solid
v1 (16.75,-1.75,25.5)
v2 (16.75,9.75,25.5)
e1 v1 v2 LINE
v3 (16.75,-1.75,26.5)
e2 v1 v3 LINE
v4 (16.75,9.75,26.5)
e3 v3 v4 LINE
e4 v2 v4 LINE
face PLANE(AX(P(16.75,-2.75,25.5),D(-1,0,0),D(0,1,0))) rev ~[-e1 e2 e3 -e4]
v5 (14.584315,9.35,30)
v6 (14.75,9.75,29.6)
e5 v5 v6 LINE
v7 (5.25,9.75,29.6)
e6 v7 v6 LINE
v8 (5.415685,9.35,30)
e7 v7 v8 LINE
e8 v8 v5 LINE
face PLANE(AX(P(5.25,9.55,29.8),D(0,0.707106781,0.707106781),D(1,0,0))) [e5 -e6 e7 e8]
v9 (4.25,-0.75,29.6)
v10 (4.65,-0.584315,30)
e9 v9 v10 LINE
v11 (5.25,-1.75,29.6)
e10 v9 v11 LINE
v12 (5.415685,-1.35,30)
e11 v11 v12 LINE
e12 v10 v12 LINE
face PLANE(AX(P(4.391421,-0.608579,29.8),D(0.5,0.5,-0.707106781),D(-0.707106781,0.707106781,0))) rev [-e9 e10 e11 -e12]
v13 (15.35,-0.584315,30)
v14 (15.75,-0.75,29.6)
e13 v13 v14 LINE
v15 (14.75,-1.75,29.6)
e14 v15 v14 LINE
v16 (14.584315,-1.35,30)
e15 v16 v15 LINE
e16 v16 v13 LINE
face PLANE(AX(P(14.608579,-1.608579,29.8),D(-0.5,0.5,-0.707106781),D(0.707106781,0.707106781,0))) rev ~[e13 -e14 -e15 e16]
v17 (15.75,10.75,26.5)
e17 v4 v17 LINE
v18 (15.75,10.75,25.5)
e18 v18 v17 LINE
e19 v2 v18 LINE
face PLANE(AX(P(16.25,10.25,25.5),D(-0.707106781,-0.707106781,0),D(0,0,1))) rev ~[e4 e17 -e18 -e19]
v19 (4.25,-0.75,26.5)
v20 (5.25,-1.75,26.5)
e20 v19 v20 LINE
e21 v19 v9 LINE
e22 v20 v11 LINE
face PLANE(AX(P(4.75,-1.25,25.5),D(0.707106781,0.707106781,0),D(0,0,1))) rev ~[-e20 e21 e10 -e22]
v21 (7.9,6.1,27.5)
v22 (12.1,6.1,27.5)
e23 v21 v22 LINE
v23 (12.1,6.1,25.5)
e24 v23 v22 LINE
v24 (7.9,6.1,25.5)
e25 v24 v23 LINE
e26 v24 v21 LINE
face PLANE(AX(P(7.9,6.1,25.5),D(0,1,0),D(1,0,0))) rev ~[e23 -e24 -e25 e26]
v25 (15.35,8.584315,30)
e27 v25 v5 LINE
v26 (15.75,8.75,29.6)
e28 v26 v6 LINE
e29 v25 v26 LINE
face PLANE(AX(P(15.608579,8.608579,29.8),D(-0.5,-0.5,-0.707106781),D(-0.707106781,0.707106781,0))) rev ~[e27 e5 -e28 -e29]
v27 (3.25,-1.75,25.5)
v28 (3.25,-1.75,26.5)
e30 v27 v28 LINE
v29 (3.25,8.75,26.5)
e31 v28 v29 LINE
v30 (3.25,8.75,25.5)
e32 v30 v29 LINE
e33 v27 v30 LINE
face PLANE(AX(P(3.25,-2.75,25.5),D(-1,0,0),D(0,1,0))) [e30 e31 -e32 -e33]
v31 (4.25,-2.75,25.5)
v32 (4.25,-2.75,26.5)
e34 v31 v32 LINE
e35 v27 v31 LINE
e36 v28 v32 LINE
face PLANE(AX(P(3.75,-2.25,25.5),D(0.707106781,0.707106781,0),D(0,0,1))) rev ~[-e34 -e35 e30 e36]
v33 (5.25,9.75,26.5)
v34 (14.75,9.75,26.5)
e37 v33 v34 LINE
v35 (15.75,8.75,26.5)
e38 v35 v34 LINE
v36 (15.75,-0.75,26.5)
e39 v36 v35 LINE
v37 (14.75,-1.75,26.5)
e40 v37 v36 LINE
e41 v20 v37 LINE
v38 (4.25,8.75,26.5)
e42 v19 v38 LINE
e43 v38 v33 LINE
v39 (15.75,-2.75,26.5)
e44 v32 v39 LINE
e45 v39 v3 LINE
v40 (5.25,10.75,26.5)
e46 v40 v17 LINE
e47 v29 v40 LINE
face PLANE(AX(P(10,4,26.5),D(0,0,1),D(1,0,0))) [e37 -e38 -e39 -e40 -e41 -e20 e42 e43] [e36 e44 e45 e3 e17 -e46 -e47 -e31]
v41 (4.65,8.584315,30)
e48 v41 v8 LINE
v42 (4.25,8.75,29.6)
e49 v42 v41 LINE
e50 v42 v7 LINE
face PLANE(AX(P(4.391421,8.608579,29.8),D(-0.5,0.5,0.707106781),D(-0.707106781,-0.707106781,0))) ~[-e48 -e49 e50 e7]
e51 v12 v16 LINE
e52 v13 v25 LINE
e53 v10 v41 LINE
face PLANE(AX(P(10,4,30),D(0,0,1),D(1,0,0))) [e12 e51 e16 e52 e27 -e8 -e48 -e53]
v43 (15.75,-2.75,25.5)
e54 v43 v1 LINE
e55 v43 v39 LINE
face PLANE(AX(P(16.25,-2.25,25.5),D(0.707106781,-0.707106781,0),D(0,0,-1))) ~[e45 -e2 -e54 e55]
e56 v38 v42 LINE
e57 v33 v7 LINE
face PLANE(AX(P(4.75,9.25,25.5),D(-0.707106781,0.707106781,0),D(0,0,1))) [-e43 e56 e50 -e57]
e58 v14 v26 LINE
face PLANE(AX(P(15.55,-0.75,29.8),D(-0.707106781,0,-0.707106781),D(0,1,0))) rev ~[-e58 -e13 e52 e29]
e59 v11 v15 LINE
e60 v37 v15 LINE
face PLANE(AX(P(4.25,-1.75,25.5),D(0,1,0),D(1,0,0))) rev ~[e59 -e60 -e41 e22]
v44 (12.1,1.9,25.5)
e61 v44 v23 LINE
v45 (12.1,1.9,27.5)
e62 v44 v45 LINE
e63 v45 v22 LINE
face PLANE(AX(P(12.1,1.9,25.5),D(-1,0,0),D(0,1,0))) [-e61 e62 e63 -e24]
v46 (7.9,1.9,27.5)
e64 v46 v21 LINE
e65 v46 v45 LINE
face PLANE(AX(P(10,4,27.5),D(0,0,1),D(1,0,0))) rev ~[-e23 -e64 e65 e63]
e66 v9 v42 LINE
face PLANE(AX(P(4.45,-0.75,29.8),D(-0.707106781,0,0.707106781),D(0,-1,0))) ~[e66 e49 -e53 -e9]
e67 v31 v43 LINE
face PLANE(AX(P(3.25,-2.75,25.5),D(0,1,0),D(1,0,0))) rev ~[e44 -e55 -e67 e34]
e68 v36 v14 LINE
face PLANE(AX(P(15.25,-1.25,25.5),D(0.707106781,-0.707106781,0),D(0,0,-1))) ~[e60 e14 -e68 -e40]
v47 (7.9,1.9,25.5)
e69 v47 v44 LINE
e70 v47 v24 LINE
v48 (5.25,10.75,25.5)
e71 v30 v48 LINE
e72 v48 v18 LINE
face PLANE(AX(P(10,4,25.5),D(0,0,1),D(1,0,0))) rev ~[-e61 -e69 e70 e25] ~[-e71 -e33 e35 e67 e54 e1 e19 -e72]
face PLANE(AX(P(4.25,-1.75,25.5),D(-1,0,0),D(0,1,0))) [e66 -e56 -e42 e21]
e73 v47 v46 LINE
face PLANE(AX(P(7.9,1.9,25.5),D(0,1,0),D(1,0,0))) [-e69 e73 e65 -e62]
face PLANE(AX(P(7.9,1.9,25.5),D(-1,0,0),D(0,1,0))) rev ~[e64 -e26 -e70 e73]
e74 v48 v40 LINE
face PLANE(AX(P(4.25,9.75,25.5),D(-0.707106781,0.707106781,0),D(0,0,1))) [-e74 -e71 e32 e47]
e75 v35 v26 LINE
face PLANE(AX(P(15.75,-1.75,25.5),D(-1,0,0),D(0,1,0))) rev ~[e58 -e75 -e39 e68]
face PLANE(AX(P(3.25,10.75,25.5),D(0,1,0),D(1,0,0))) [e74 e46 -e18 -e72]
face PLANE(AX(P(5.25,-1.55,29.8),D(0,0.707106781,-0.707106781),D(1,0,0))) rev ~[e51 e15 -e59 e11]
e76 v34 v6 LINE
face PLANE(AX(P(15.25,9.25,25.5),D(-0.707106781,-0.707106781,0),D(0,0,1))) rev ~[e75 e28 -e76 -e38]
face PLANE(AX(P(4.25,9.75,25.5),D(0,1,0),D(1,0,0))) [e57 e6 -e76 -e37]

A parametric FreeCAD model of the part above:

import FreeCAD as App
import Part
import Sketcher

V = App.Vector
Q = App.Units.Quantity


def edges_at(feature, points):
    """Names of the edges that pass closest to the given points."""
    edges = feature.Shape.Edges
    near = lambda p: min(range(len(edges)), key=lambda i: edges[i].distToShape(Part.Vertex(*p))[0])
    return sorted({f"Edge{near(p) + 1}" for p in points})

doc = App.newDocument("Part")
params = doc.addObject("Spreadsheet::Sheet", "Params")
for row, (alias, value) in enumerate([
    ("sketch1_width", "4.2 mm"),
    ("pad1_length", "2 mm"),
    ("sketch2_width", "13.5 mm"),
    ("pad2_length", "1 mm"),
    ("chamfer_size", "1 mm"),
    ("chamfer2_size", "2 mm"),
    ("sketch3_width", "11.5 mm"),
    ("pad3_length", "4.5 mm"),
    ("chamfer3_size", "1 mm"),
    ("chamfer4_size", "0.4 mm"),
], start=1):
    params.set(f"A{row}", alias)
    params.set(f"B{row}", "=" + value)
    params.setAlias(f"B{row}", alias)

body = doc.addObject("PartDesign::Body", "Body")

# Sketch on XY plane
sketch1 = body.newObject("Sketcher::SketchObject", "Sketch")
sketch1.AttachmentSupport = (doc.getObject("XY_Plane"), [""])
sketch1.MapMode = "FlatFace"
sketch1.addGeometry(Part.LineSegment(V(-2.1, 2.1, 0), V(-2.1, -2.1, 0)), False)
sketch1.addGeometry(Part.LineSegment(V(-2.1, -2.1, 0), V(2.1, -2.1, 0)), False)
sketch1.addGeometry(Part.LineSegment(V(2.1, -2.1, 0), V(2.1, 2.1, 0)), False)
sketch1.addGeometry(Part.LineSegment(V(2.1, 2.1, 0), V(-2.1, 2.1, 0)), False)
sketch1.addConstraint(Sketcher.Constraint("Coincident", 0, 2, 1, 1))
sketch1.addConstraint(Sketcher.Constraint("Coincident", 1, 2, 2, 1))
sketch1.addConstraint(Sketcher.Constraint("Coincident", 2, 2, 3, 1))
sketch1.addConstraint(Sketcher.Constraint("Coincident", 3, 2, 0, 1))
sketch1.addConstraint(Sketcher.Constraint("Vertical", 0))
sketch1.addConstraint(Sketcher.Constraint("Horizontal", 1))
sketch1.addConstraint(Sketcher.Constraint("Vertical", 2))
sketch1.addConstraint(Sketcher.Constraint("Horizontal", 3))
sketch1.addConstraint(Sketcher.Constraint("Symmetric", 0, 2, 2, 2, -1, 1))
sketch1.addConstraint(Sketcher.Constraint("Equal", 3, 0))
sketch1.addConstraint(Sketcher.Constraint("DistanceX", 1, 1, 1, 2, Q("4.2 mm")))
sketch1.setExpression("Constraints[10]", "Params.sketch1_width")
pad1 = body.newObject("PartDesign::Pad", "Pad")
pad1.Profile = sketch1
pad1.setExpression("Length", "Params.pad1_length")
body2 = doc.addObject("PartDesign::Body", "Body001")

# Sketch on XY plane
sketch2 = body2.newObject("Sketcher::SketchObject", "Sketch001")
sketch2.AttachmentSupport = (doc.getObject("XY_Plane001"), [""])
sketch2.MapMode = "FlatFace"
sketch2.addGeometry(Part.LineSegment(V(-7, 7, 0), V(-7, -7, 0)), False)
sketch2.addGeometry(Part.LineSegment(V(-7, -7, 0), V(7, -7, 0)), False)
sketch2.addGeometry(Part.LineSegment(V(7, -7, 0), V(7, 7, 0)), False)
sketch2.addGeometry(Part.LineSegment(V(7, 7, 0), V(-7, 7, 0)), False)
sketch2.addConstraint(Sketcher.Constraint("Coincident", 0, 2, 1, 1))
sketch2.addConstraint(Sketcher.Constraint("Coincident", 1, 2, 2, 1))
sketch2.addConstraint(Sketcher.Constraint("Coincident", 2, 2, 3, 1))
sketch2.addConstraint(Sketcher.Constraint("Coincident", 3, 2, 0, 1))
sketch2.addConstraint(Sketcher.Constraint("Vertical", 0))
sketch2.addConstraint(Sketcher.Constraint("Horizontal", 1))
sketch2.addConstraint(Sketcher.Constraint("Vertical", 2))
sketch2.addConstraint(Sketcher.Constraint("Horizontal", 3))
sketch2.addConstraint(Sketcher.Constraint("Symmetric", 0, 2, 2, 2, -1, 1))
sketch2.addConstraint(Sketcher.Constraint("Equal", 3, 0))
sketch2.addConstraint(Sketcher.Constraint("DistanceX", 1, 1, 1, 2, Q("13.5 mm")))
sketch2.setExpression("Constraints[10]", "Params.sketch2_width")
pad2 = body2.newObject("PartDesign::Pad", "Pad001")
pad2.Profile = sketch2
pad2.setExpression("Length", "Params.pad2_length")
doc.recompute()

chamfer = body2.newObject("PartDesign::Chamfer", "Chamfer")
chamfer.Base = (pad2, edges_at(pad2, [(-6.75, -6.75, 0.5), (6.75, -6.75, 0.5), (6.75, 6.75, 0.5)]))
chamfer.setExpression("Size", "Params.chamfer_size")
doc.recompute()

chamfer2 = body2.newObject("PartDesign::Chamfer", "Chamfer001")
chamfer2.Base = (chamfer, edges_at(chamfer, [(-6.75, 6.75, 0.5)]))
chamfer2.setExpression("Size", "Params.chamfer2_size")
body3 = doc.addObject("PartDesign::Body", "Body002")

# Sketch on XY plane
sketch3 = body3.newObject("Sketcher::SketchObject", "Sketch002")
sketch3.AttachmentSupport = (doc.getObject("XY_Plane002"), [""])
sketch3.MapMode = "FlatFace"
sketch3.addGeometry(Part.LineSegment(V(-6, 6, 0), V(-6, -6, 0)), False)
sketch3.addGeometry(Part.LineSegment(V(-6, -6, 0), V(6, -6, 0)), False)
sketch3.addGeometry(Part.LineSegment(V(6, -6, 0), V(6, 6, 0)), False)
sketch3.addGeometry(Part.LineSegment(V(6, 6, 0), V(-6, 6, 0)), False)
sketch3.addConstraint(Sketcher.Constraint("Coincident", 0, 2, 1, 1))
sketch3.addConstraint(Sketcher.Constraint("Coincident", 1, 2, 2, 1))
sketch3.addConstraint(Sketcher.Constraint("Coincident", 2, 2, 3, 1))
sketch3.addConstraint(Sketcher.Constraint("Coincident", 3, 2, 0, 1))
sketch3.addConstraint(Sketcher.Constraint("Vertical", 0))
sketch3.addConstraint(Sketcher.Constraint("Horizontal", 1))
sketch3.addConstraint(Sketcher.Constraint("Vertical", 2))
sketch3.addConstraint(Sketcher.Constraint("Horizontal", 3))
sketch3.addConstraint(Sketcher.Constraint("Symmetric", 0, 2, 2, 2, -1, 1))
sketch3.addConstraint(Sketcher.Constraint("Equal", 3, 0))
sketch3.addConstraint(Sketcher.Constraint("DistanceX", 1, 1, 1, 2, Q("11.5 mm")))
sketch3.setExpression("Constraints[10]", "Params.sketch3_width")
pad3 = body3.newObject("PartDesign::Pad", "Pad002")
pad3.Profile = sketch3
pad3.setExpression("Length", "Params.pad3_length")
doc.recompute()

chamfer3 = body3.newObject("PartDesign::Chamfer", "Chamfer002")
chamfer3.Base = (pad3, edges_at(pad3, [
    (-5.75, -5.75, 2.25),
    (-5.75, 5.75, 2.25),
    (5.75, -5.75, 2.25),
    (5.75, 5.75, 2.25),
]))
chamfer3.setExpression("Size", "Params.chamfer3_size")
doc.recompute()

chamfer4 = body3.newObject("PartDesign::Chamfer", "Chamfer003")
chamfer4.Base = (chamfer3, edges_at(chamfer3, [
    (-5.75, 0, 4.5),
    (-5.25, -5.25, 4.5),
    (-5.25, 5.25, 4.5),
    (0, -5.75, 4.5),
    (0, 5.75, 4.5),
    (5.25, -5.25, 4.5),
    (5.25, 5.25, 4.5),
    (5.75, 0, 4.5),
]))
chamfer4.setExpression("Size", "Params.chamfer4_size")
doc.recompute()

boolean = body3.newObject("PartDesign::Boolean", "Boolean")
boolean.Type = "Fuse"
boolean.addObjects([body2])
doc.recompute()

boolean2 = body3.newObject("PartDesign::Boolean", "Boolean001")
boolean2.Type = "Cut"
boolean2.addObjects([body])
body4 = doc.addObject("PartDesign::Body", "Body003")
doc.recompute()

body3.Placement = App.Placement(V(10, 4, 25.5), App.Rotation(V(0, 0, 1), 0))
boolean3 = body4.newObject("PartDesign::Boolean", "Boolean002")
boolean3.Type = "Fuse"
boolean3.addObjects([body3])

doc.recompute()
